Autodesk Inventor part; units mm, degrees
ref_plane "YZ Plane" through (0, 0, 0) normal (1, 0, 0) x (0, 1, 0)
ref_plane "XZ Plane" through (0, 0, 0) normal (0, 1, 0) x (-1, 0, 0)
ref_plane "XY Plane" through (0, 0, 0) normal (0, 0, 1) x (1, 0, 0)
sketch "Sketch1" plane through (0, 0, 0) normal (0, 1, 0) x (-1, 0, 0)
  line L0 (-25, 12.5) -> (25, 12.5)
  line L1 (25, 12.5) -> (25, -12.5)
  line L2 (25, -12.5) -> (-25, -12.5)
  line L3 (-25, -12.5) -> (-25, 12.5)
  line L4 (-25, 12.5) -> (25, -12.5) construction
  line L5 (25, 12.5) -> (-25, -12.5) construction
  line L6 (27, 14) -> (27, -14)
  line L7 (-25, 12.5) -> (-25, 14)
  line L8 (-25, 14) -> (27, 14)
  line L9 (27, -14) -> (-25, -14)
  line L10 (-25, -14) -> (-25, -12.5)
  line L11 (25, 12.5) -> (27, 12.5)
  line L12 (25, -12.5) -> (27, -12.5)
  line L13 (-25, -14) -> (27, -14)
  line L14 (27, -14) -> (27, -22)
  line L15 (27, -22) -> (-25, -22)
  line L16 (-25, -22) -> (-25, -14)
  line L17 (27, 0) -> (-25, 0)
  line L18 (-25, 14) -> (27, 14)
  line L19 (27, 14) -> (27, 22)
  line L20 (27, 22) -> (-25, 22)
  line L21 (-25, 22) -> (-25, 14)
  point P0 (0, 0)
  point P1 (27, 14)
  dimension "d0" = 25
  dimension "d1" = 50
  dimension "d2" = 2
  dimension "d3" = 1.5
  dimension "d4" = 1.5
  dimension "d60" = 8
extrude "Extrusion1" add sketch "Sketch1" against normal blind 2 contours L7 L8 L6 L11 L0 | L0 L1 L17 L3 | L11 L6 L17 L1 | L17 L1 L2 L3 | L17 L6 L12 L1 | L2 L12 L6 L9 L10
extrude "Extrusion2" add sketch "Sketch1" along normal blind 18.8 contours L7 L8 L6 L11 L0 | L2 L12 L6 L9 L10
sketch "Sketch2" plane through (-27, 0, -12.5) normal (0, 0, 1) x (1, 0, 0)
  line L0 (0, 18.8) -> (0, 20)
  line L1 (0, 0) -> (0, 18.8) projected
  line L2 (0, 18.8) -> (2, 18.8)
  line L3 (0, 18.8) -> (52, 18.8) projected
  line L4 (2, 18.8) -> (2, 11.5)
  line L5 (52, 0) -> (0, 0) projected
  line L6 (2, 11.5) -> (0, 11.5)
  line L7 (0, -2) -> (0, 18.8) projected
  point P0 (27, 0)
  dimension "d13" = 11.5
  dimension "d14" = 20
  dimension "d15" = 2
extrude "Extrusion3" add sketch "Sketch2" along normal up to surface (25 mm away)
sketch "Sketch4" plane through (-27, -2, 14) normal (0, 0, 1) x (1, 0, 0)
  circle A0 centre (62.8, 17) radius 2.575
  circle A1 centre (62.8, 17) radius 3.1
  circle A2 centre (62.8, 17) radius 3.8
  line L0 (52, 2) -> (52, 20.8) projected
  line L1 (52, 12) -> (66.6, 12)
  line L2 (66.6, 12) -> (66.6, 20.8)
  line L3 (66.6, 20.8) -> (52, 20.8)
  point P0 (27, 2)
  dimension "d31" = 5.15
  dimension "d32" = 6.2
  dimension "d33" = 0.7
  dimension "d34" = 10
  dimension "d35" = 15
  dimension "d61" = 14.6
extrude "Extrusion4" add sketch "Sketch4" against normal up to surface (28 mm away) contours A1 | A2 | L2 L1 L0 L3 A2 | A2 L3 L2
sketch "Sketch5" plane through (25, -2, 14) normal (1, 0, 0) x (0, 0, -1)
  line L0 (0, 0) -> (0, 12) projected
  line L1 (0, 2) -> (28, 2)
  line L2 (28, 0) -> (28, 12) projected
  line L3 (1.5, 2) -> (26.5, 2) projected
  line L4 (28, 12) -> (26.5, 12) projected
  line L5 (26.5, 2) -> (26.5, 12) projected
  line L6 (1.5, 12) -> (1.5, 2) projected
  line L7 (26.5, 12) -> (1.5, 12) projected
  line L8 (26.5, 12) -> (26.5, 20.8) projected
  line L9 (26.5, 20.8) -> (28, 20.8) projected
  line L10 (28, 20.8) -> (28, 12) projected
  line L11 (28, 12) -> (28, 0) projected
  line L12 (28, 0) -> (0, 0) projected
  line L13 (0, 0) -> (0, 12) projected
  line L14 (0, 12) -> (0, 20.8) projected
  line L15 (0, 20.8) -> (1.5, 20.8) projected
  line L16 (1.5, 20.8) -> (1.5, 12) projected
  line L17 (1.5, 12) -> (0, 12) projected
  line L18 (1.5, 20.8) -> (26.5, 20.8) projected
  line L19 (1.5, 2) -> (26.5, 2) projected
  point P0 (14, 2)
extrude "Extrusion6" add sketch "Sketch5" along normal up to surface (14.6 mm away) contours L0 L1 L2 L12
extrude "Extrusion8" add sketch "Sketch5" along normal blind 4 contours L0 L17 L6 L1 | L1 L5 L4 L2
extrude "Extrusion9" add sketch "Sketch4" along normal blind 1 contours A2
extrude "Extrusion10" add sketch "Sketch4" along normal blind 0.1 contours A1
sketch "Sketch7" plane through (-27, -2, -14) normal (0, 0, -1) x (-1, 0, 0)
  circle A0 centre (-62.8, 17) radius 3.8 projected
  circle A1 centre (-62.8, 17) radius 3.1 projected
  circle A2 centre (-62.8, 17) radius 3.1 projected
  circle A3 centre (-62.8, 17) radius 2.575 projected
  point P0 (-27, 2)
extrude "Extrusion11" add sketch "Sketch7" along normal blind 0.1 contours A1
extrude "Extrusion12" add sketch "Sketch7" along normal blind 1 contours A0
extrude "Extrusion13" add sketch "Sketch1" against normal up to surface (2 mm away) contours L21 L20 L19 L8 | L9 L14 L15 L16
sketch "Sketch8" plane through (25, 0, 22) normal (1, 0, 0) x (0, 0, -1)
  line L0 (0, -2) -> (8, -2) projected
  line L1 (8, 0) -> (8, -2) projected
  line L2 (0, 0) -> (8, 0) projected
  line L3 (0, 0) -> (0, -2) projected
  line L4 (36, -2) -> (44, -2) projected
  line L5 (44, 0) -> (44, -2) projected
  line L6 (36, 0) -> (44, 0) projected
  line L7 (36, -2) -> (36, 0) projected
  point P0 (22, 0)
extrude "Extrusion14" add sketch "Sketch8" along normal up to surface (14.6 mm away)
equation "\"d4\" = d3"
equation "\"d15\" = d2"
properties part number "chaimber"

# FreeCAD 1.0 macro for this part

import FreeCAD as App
import Part
import Sketcher
from FreeCAD import Vector
Q = App.Units.Quantity


def add_polygon(sketch, points):
    """Adds a closed chain of lines whose ends are joined by coincident constraints."""
    first, n = sketch.GeometryCount, len(points)
    for a, b in zip(points, points[1:] + points[:1]):
        sketch.addGeometry(Part.LineSegment(App.Vector(*a, 0), App.Vector(*b, 0)), False)
    for i in range(n):
        sketch.addConstraint(Sketcher.Constraint("Coincident", first + i, 2, first + (i + 1) % n, 1))

doc = App.newDocument("Part")
body = doc.addObject("PartDesign::Body", "Body")

# Sketch on XZ plane
sketch1 = body.newObject("Sketcher::SketchObject", "Sketch")
sketch1.AttachmentSupport = (doc.getObject("XZ_Plane"), [""])
sketch1.MapMode = "FlatFace"
add_polygon(sketch1, [(25, 14), (25, -14), (-27, -14), (-27, 14)])  # lines 0-3
sketch1.addConstraint([
    Sketcher.Constraint("Vertical", 0),
    Sketcher.Constraint("Horizontal", 1),
    Sketcher.Constraint("Vertical", 2),
    Sketcher.Constraint("Horizontal", 3),
    Sketcher.Constraint("DistanceX", -1, 1, 0, 2, Q("25 mm")),
    Sketcher.Constraint("DistanceX", 1, 2, 1, 1, Q("52 mm")),
    Sketcher.Constraint("DistanceY", 0, 2, 0, 1, Q("28 mm")),
    Sketcher.Constraint("DistanceY", 0, 2, -1, 1, Q("14 mm")),
])
pad1 = body.newObject("PartDesign::Pad", "Pad")
pad1.Profile = sketch1
pad1.Length = 2

# Sketch on XZ plane
sketch2 = body.newObject("Sketcher::SketchObject", "Sketch001")
sketch2.AttachmentSupport = (doc.getObject("XZ_Plane"), [""])
sketch2.MapMode = "FlatFace"
add_polygon(sketch2, [(25, 14), (25, 12.5), (-27, 12.5), (-27, 14)])  # lines 0-3
add_polygon(sketch2, [(-27, -12.5), (25, -12.5), (25, -14), (-27, -14)])  # lines 4-7
sketch2.addConstraint([
    Sketcher.Constraint("Vertical", 0),
    Sketcher.Constraint("Horizontal", 1),
    Sketcher.Constraint("Vertical", 2),
    Sketcher.Constraint("Horizontal", 3),
    Sketcher.Constraint("Horizontal", 4),
    Sketcher.Constraint("Vertical", 5),
    Sketcher.Constraint("Horizontal", 6),
    Sketcher.Constraint("Vertical", 7),
    Sketcher.Constraint("Symmetric", 0, 2, 4, 2, -1),
    Sketcher.Constraint("Symmetric", 2, 2, 6, 2, -1),
    Sketcher.Constraint("DistanceY", 0, 2, 0, 1, Q("1.5 mm")),
    Sketcher.Constraint("DistanceX", -1, 1, 0, 2, Q("25 mm")),
    Sketcher.Constraint("DistanceY", 4, 2, 0, 2, Q("25 mm")),
    Sketcher.Constraint("DistanceX", 1, 2, 1, 1, Q("52 mm")),
])
pad2 = body.newObject("PartDesign::Pad", "Pad001")
pad2.Profile = sketch2
pad2.Length = 18.8
pad2.Reversed = True

# Sketch on XY plane
sketch3 = body.newObject("Sketcher::SketchObject", "Sketch002")
sketch3.AttachmentSupport = (doc.getObject("XY_Plane"), [""])
sketch3.MapMode = "FlatFace"
sketch3.AttachmentOffset = App.Placement(Vector(0, 0, -12.5), App.Rotation())
add_polygon(sketch3, [(-27, 18.8), (-27, 11.5), (-25, 11.5), (-25, 18.8)])  # lines 0-3
sketch3.addConstraint([
    Sketcher.Constraint("Vertical", 0),
    Sketcher.Constraint("Horizontal", 1),
    Sketcher.Constraint("Vertical", 2),
    Sketcher.Constraint("Horizontal", 3),
    Sketcher.Constraint("DistanceX", 1, 1, 1, 2, Q("2 mm")),
    Sketcher.Constraint("DistanceY", -1, 1, 0, 2, Q("11.5 mm")),
    Sketcher.Constraint("DistanceY", 0, 2, 0, 1, Q("7.3 mm")),
    Sketcher.Constraint("DistanceX", 0, 2, -1, 1, Q("27 mm")),
])
pad3 = body.newObject("PartDesign::Pad", "Pad002")
pad3.Profile = sketch3
pad3.Length = 25

# Sketch on XY plane
sketch4 = body.newObject("Sketcher::SketchObject", "Sketch003")
sketch4.AttachmentSupport = (doc.getObject("XY_Plane"), [""])
sketch4.MapMode = "FlatFace"
sketch4.AttachmentOffset = App.Placement(Vector(0, 0, 14), App.Rotation())
add_polygon(sketch4, [(39.6, 10), (39.6, 18.8), (25, 18.8), (25, 10)])  # lines 0-3
sketch4.addGeometry(Part.Circle(Vector(35.8, 15, 0), Vector(0, 0, 1), 2.575), False)  # 4
sketch4.addConstraint([
    Sketcher.Constraint("Vertical", 0),
    Sketcher.Constraint("Horizontal", 1),
    Sketcher.Constraint("Vertical", 2),
    Sketcher.Constraint("Horizontal", 3),
    Sketcher.Constraint("Diameter", 4, Q("5.15 mm")),
    Sketcher.Constraint("DistanceX", 1, 2, 1, 1, Q("14.6 mm")),
    Sketcher.Constraint("DistanceY", -1, 1, 4, 3, Q("15 mm")),
    Sketcher.Constraint("DistanceY", -1, 1, 2, 2, Q("10 mm")),
    Sketcher.Constraint("DistanceY", 0, 1, 0, 2, Q("8.8 mm")),
    Sketcher.Constraint("DistanceX", -1, 1, 1, 2, Q("25 mm")),
    Sketcher.Constraint("DistanceX", -1, 1, 4, 3, Q("35.8 mm")),
])
pad4 = body.newObject("PartDesign::Pad", "Pad003")
pad4.Profile = sketch4
pad4.Length = 28
pad4.Reversed = True

# Sketch on YZ plane
sketch5 = body.newObject("Sketcher::SketchObject", "Sketch004")
sketch5.AttachmentSupport = (doc.getObject("YZ_Plane"), [""])
sketch5.MapMode = "FlatFace"
sketch5.AttachmentOffset = App.Placement(Vector(0, 0, 25), App.Rotation())
add_polygon(sketch5, [(0, 14), (-2, 14), (-2, -14), (0, -14)])  # lines 0-3
sketch5.addConstraint([
    Sketcher.Constraint("Horizontal", 0),
    Sketcher.Constraint("Vertical", 1),
    Sketcher.Constraint("Horizontal", 2),
    Sketcher.Constraint("Vertical", 3),
    Sketcher.Constraint("Symmetric", 2, 2, 3, 2, -1, 1),
    Sketcher.Constraint("DistanceX", 0, 2, 0, 1, Q("2 mm")),
    Sketcher.Constraint("DistanceY", 1, 2, 1, 1, Q("28 mm")),
])
pad5 = body.newObject("PartDesign::Pad", "Pad004")
pad5.Profile = sketch5
pad5.Length = 14.6

# Sketch on YZ plane
sketch6 = body.newObject("Sketcher::SketchObject", "Sketch005")
sketch6.AttachmentSupport = (doc.getObject("YZ_Plane"), [""])
sketch6.MapMode = "FlatFace"
sketch6.AttachmentOffset = App.Placement(Vector(0, 0, 25), App.Rotation())
add_polygon(sketch6, [(10, 14), (0, 14), (0, 12.5), (10, 12.5)])  # lines 0-3
add_polygon(sketch6, [(0, -12.5), (0, -14), (10, -14), (10, -12.5)])  # lines 4-7
sketch6.addConstraint([
    Sketcher.Constraint("Horizontal", 0),
    Sketcher.Constraint("Vertical", 1),
    Sketcher.Constraint("Horizontal", 2),
    Sketcher.Constraint("Vertical", 3),
    Sketcher.Constraint("Vertical", 4),
    Sketcher.Constraint("Horizontal", 5),
    Sketcher.Constraint("Vertical", 6),
    Sketcher.Constraint("Horizontal", 7),
    Sketcher.Constraint("Symmetric", 0, 2, 4, 2, -1, 1),
    Sketcher.Constraint("Symmetric", 2, 2, 6, 2, -1),
    Sketcher.Constraint("PointOnObject", 0, 2, -2),
    Sketcher.Constraint("DistanceX", 0, 2, 0, 1, Q("10 mm")),
    Sketcher.Constraint("DistanceY", 1, 2, 1, 1, Q("1.5 mm")),
    Sketcher.Constraint("DistanceY", -1, 1, 0, 2, Q("14 mm")),
])
pad6 = body.newObject("PartDesign::Pad", "Pad005")
pad6.Profile = sketch6
pad6.Length = 4

# Sketch on XY plane
sketch7 = body.newObject("Sketcher::SketchObject", "Sketch006")
sketch7.AttachmentSupport = (doc.getObject("XY_Plane"), [""])
sketch7.MapMode = "FlatFace"
sketch7.AttachmentOffset = App.Placement(Vector(0, 0, 14), App.Rotation())
sketch7.addGeometry([
    Part.Circle(Vector(35.8, 15, 0), Vector(0, 0, 1), 3.8),
    Part.Circle(Vector(35.8, 15, 0), Vector(0, 0, 1), 3.1),
], False)
sketch7.addConstraint([
    Sketcher.Constraint("Coincident", 1, 3, 0, 3),
    Sketcher.Constraint("Diameter", 1, Q("6.2 mm")),
    Sketcher.Constraint("DistanceY", -1, 1, 0, 3, Q("15 mm")),
    Sketcher.Constraint("Diameter", 0, Q("7.6 mm")),
    Sketcher.Constraint("DistanceX", -1, 1, 0, 3, Q("35.8 mm")),
])
pad7 = body.newObject("PartDesign::Pad", "Pad006")
pad7.Profile = sketch7
pad7.Length = 1

# Sketch on XY plane
sketch8 = body.newObject("Sketcher::SketchObject", "Sketch007")
sketch8.AttachmentSupport = (doc.getObject("XY_Plane"), [""])
sketch8.MapMode = "FlatFace"
sketch8.AttachmentOffset = App.Placement(Vector(0, 0, 14), App.Rotation())
sketch8.addGeometry([
    Part.Circle(Vector(35.8, 15, 0), Vector(0, 0, 1), 3.1),
    Part.Circle(Vector(35.8, 15, 0), Vector(0, 0, 1), 2.575),
], False)
sketch8.addConstraint([
    Sketcher.Constraint("Coincident", 1, 3, 0, 3),
    Sketcher.Constraint("Diameter", 0, Q("6.2 mm")),
    Sketcher.Constraint("Diameter", 1, Q("5.15 mm")),
    Sketcher.Constraint("DistanceY", -1, 1, 0, 3, Q("15 mm")),
    Sketcher.Constraint("DistanceX", -1, 1, 0, 3, Q("35.8 mm")),
])
pad8 = body.newObject("PartDesign::Pad", "Pad007")
pad8.Profile = sketch8
pad8.Length = 0.1

# Sketch on XY plane
sketch9 = body.newObject("Sketcher::SketchObject", "Sketch008")
sketch9.AttachmentSupport = (doc.getObject("XY_Plane"), [""])
sketch9.MapMode = "FlatFace"
sketch9.AttachmentOffset = App.Placement(Vector(0, 0, -14), App.Rotation())
sketch9.addGeometry([
    Part.Circle(Vector(35.8, 15, 0), Vector(0, 0, 1), 3.1),
    Part.Circle(Vector(35.8, 15, 0), Vector(0, 0, 1), 2.575),
], False)
sketch9.addConstraint([
    Sketcher.Constraint("Coincident", 1, 3, 0, 3),
    Sketcher.Constraint("Diameter", 0, Q("6.2 mm")),
    Sketcher.Constraint("Diameter", 1, Q("5.15 mm")),
    Sketcher.Constraint("DistanceY", -1, 1, 0, 3, Q("15 mm")),
    Sketcher.Constraint("DistanceX", -1, 1, 0, 3, Q("35.8 mm")),
])
pad9 = body.newObject("PartDesign::Pad", "Pad008")
pad9.Profile = sketch9
pad9.Length = 0.1
pad9.Reversed = True

# Sketch on XY plane
sketch10 = body.newObject("Sketcher::SketchObject", "Sketch009")
sketch10.AttachmentSupport = (doc.getObject("XY_Plane"), [""])
sketch10.MapMode = "FlatFace"
sketch10.AttachmentOffset = App.Placement(Vector(0, 0, -14), App.Rotation())
sketch10.addGeometry([
    Part.Circle(Vector(35.8, 15, 0), Vector(0, 0, 1), 3.8),
    Part.Circle(Vector(35.8, 15, 0), Vector(0, 0, 1), 3.1),
], False)
sketch10.addConstraint([
    Sketcher.Constraint("Coincident", 1, 3, 0, 3),
    Sketcher.Constraint("Diameter", 0, Q("7.6 mm")),
    Sketcher.Constraint("Diameter", 1, Q("6.2 mm")),
    Sketcher.Constraint("DistanceY", -1, 1, 0, 3, Q("15 mm")),
    Sketcher.Constraint("DistanceX", -1, 1, 0, 3, Q("35.8 mm")),
])
pad10 = body.newObject("PartDesign::Pad", "Pad009")
pad10.Profile = sketch10
pad10.Length = 1
pad10.Reversed = True

# Sketch on XZ plane
sketch11 = body.newObject("Sketcher::SketchObject", "Sketch010")
sketch11.AttachmentSupport = (doc.getObject("XZ_Plane"), [""])
sketch11.MapMode = "FlatFace"
add_polygon(sketch11, [(25, 22), (25, 14), (-27, 14), (-27, 22)])  # lines 0-3
add_polygon(sketch11, [(-27, -14), (25, -14), (25, -22), (-27, -22)])  # lines 4-7
sketch11.addConstraint([
    Sketcher.Constraint("Vertical", 0),
    Sketcher.Constraint("Horizontal", 1),
    Sketcher.Constraint("Vertical", 2),
    Sketcher.Constraint("Horizontal", 3),
    Sketcher.Constraint("Horizontal", 4),
    Sketcher.Constraint("Vertical", 5),
    Sketcher.Constraint("Horizontal", 6),
    Sketcher.Constraint("Vertical", 7),
    Sketcher.Constraint("Symmetric", 0, 2, 4, 2, -1),
    Sketcher.Constraint("Symmetric", 2, 2, 6, 2, -1),
    Sketcher.Constraint("DistanceY", 0, 2, 0, 1, Q("8 mm")),
    Sketcher.Constraint("DistanceX", -1, 1, 0, 2, Q("25 mm")),
    Sketcher.Constraint("DistanceX", 1, 2, 1, 1, Q("52 mm")),
    Sketcher.Constraint("DistanceY", -1, 1, 0, 2, Q("14 mm")),
])
pad11 = body.newObject("PartDesign::Pad", "Pad010")
pad11.Profile = sketch11
pad11.Length = 2

# Sketch on YZ plane
sketch12 = body.newObject("Sketcher::SketchObject", "Sketch011")
sketch12.AttachmentSupport = (doc.getObject("YZ_Plane"), [""])
sketch12.MapMode = "FlatFace"
sketch12.AttachmentOffset = App.Placement(Vector(0, 0, 25), App.Rotation())
add_polygon(sketch12, [(0, 22), (-2, 22), (-2, 14), (0, 14)])  # lines 0-3
add_polygon(sketch12, [(0, -14), (-2, -14), (-2, -22), (0, -22)])  # lines 4-7
sketch12.addConstraint([
    Sketcher.Constraint("Horizontal", 0),
    Sketcher.Constraint("Vertical", 1),
    Sketcher.Constraint("Horizontal", 2),
    Sketcher.Constraint("Vertical", 3),
    Sketcher.Constraint("Horizontal", 4),
    Sketcher.Constraint("Vertical", 5),
    Sketcher.Constraint("Horizontal", 6),
    Sketcher.Constraint("Vertical", 7),
    Sketcher.Constraint("Symmetric", 3, 2, 6, 2, -1, 1),
    Sketcher.Constraint("Symmetric", 1, 2, 4, 2, -1),
    Sketcher.Constraint("PointOnObject", 2, 2, -2),
    Sketcher.Constraint("DistanceX", 0, 2, 0, 1, Q("2 mm")),
    Sketcher.Constraint("DistanceY", 1, 2, 1, 1, Q("8 mm")),
    Sketcher.Constraint("DistanceY", -1, 1, 0, 2, Q("22 mm")),
])
pad12 = body.newObject("PartDesign::Pad", "Pad011")
pad12.Profile = sketch12
pad12.Length = 14.6

doc.recompute()
